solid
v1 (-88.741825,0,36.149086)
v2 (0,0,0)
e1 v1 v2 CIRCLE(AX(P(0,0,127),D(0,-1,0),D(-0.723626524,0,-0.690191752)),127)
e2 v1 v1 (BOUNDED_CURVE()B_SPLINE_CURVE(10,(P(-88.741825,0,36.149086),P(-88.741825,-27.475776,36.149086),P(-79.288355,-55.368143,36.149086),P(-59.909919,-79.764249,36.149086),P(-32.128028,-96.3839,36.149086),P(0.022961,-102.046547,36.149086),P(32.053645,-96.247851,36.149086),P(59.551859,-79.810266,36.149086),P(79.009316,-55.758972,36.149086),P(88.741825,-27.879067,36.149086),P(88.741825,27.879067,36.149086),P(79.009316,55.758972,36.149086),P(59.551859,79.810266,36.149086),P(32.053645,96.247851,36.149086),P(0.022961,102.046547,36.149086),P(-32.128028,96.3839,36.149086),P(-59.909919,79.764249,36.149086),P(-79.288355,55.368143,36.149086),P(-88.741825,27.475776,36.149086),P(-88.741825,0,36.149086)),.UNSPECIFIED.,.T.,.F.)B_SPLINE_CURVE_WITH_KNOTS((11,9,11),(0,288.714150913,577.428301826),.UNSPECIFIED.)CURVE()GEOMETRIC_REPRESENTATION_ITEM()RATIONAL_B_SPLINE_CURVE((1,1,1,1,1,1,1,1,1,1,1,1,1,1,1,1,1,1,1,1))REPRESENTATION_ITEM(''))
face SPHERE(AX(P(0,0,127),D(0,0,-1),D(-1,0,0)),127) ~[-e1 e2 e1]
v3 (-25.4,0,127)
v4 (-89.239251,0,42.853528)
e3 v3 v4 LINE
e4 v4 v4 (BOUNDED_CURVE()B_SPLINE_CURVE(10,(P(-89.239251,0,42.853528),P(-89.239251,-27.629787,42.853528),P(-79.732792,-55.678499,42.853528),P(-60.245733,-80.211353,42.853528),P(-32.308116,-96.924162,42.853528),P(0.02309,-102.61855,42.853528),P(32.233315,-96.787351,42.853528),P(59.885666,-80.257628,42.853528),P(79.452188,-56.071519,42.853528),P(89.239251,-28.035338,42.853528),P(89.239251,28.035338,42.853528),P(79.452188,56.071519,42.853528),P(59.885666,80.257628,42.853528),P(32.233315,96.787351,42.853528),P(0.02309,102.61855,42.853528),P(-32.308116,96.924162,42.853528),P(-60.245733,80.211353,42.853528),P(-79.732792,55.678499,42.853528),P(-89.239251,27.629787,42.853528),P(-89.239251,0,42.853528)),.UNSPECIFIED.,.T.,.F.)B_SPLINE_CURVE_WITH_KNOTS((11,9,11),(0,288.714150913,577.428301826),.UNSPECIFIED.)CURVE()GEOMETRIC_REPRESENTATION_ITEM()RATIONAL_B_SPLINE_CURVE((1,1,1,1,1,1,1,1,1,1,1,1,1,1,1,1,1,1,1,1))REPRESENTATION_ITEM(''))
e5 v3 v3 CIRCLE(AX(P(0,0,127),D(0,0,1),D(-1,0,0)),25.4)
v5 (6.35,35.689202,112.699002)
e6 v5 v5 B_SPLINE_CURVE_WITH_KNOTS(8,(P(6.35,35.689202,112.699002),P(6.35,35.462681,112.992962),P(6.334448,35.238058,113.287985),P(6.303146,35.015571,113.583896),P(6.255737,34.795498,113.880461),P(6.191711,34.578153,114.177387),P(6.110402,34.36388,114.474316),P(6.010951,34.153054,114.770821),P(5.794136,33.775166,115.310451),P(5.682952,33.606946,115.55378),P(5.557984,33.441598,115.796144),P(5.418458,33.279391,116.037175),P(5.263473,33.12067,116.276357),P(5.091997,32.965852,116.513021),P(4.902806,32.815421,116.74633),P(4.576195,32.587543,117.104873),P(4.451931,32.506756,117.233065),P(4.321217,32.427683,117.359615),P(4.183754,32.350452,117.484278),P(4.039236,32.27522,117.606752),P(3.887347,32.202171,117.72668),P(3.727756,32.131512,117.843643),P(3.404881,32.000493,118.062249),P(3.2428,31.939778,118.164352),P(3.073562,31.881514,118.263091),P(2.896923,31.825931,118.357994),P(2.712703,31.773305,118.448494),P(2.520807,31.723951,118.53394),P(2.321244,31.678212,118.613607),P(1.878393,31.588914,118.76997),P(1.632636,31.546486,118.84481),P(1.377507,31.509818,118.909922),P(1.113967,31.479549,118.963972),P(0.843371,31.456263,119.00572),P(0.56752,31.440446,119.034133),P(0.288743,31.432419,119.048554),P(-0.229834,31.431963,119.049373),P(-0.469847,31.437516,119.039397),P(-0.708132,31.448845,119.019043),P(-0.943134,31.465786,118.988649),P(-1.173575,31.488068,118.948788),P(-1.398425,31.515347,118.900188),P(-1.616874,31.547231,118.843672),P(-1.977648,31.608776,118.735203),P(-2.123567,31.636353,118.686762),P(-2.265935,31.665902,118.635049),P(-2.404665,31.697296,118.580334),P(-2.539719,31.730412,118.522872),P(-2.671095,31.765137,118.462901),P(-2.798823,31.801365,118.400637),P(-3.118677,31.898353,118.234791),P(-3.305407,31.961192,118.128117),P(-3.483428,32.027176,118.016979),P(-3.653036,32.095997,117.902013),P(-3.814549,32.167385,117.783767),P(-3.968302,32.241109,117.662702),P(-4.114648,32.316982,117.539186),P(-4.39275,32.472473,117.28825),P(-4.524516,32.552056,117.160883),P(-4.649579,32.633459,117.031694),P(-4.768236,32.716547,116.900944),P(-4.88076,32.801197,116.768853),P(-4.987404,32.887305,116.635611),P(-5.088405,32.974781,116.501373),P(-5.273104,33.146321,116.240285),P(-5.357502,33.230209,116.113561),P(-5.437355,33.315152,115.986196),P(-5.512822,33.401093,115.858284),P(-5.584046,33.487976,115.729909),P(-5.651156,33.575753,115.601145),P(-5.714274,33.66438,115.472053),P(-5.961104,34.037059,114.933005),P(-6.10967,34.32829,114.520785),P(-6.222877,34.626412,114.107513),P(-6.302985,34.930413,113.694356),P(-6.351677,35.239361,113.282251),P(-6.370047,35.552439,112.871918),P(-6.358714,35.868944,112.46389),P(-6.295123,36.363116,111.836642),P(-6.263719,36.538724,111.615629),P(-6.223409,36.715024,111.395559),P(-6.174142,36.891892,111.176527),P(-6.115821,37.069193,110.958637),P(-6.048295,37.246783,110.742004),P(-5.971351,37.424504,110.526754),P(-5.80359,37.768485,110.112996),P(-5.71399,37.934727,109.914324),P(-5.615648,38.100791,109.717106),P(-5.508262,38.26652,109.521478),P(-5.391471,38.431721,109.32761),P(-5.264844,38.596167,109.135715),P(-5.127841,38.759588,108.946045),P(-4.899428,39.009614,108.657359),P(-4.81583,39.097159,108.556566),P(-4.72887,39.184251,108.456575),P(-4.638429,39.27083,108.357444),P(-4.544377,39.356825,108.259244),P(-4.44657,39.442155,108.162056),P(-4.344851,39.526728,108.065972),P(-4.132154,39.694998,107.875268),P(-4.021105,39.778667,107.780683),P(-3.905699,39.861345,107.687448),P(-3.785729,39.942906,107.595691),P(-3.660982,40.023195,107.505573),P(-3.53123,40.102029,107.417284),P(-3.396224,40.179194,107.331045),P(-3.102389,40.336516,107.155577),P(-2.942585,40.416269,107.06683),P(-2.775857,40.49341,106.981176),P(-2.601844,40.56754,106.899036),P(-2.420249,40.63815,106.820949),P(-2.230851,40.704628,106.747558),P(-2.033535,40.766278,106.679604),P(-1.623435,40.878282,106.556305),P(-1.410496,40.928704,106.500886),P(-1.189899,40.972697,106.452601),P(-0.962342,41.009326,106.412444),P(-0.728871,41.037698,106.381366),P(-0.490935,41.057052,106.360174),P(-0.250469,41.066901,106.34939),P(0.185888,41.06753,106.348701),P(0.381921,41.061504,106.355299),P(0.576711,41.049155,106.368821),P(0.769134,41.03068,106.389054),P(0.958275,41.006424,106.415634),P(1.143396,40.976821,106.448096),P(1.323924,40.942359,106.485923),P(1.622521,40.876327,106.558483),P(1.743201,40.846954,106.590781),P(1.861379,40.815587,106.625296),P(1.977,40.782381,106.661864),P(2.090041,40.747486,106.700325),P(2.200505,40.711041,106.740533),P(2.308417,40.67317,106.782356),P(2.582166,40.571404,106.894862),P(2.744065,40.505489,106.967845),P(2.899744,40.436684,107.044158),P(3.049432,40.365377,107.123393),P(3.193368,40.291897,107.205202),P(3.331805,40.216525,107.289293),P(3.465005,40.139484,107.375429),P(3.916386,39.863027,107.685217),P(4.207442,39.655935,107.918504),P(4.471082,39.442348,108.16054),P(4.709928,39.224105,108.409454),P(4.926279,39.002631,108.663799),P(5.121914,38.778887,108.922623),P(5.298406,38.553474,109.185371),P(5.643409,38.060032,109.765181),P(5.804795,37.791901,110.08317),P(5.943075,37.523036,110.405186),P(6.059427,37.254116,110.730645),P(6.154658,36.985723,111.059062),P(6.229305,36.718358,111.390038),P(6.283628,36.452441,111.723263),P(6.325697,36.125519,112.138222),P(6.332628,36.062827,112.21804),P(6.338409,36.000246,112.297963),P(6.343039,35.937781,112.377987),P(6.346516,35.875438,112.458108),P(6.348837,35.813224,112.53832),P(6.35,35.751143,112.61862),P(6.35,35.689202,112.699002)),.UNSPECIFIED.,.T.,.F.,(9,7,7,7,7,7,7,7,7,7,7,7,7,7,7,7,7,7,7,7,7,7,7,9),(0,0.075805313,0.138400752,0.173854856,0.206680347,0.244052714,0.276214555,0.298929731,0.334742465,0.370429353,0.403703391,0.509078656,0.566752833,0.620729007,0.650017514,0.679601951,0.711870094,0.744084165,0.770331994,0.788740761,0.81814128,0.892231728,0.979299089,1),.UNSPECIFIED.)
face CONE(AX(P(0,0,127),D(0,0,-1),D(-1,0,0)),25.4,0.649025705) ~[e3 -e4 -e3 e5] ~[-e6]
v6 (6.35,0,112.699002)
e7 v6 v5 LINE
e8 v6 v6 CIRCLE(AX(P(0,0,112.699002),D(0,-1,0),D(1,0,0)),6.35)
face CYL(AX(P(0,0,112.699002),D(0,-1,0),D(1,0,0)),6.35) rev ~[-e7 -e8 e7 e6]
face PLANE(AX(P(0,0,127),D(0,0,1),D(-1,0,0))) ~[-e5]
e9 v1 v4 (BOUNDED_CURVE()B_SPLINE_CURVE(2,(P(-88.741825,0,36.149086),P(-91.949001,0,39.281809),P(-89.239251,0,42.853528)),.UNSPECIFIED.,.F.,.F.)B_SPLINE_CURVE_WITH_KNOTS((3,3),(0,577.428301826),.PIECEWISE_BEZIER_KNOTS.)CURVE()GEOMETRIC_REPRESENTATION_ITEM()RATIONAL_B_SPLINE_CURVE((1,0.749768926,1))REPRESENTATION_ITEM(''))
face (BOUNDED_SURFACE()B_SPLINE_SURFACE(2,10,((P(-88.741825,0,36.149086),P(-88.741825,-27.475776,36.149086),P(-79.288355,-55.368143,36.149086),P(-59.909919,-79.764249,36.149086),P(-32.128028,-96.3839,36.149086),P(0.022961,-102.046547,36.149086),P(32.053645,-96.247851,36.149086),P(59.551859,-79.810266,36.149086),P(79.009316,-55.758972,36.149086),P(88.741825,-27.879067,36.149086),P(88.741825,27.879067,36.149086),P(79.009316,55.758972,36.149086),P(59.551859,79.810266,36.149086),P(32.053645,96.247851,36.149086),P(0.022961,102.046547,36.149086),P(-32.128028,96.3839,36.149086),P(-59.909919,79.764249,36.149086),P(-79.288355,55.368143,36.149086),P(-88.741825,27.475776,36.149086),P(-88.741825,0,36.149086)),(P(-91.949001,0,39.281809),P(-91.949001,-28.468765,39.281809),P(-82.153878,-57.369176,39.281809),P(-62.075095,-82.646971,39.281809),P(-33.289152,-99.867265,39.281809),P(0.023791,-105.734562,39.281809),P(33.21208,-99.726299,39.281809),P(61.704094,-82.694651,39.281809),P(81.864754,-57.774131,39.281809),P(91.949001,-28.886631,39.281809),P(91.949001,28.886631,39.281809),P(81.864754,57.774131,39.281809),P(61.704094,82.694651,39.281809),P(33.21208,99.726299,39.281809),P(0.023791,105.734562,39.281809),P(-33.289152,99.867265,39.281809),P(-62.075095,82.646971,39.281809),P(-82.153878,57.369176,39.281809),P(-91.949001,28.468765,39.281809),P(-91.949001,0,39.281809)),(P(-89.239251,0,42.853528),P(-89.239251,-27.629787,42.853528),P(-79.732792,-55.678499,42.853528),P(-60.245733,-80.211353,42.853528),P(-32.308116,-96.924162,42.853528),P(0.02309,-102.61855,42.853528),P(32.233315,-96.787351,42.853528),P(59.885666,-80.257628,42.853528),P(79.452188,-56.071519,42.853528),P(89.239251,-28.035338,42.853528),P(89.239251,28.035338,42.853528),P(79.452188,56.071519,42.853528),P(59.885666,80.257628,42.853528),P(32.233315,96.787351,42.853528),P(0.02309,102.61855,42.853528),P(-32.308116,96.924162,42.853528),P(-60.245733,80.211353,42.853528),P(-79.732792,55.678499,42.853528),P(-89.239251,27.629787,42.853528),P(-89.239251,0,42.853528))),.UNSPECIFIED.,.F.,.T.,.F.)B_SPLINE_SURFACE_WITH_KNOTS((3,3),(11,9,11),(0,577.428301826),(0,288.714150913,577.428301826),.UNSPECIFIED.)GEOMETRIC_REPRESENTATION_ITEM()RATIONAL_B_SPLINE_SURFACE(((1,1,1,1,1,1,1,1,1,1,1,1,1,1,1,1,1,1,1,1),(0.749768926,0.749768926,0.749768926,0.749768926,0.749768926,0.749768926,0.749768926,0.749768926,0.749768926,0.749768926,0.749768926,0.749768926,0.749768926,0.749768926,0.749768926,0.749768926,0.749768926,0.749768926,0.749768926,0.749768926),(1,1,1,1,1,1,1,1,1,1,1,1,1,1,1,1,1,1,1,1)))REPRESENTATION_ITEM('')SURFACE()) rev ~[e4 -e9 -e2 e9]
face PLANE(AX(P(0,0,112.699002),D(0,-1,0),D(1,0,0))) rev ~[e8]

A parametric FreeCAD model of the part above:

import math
import FreeCAD as App
import Part
import Sketcher
from FreeCAD import Vector
Q = App.Units.Quantity


def edges_at(feature, points):
    """Names of the edges that pass closest to the given points."""
    edges = feature.Shape.Edges
    near = lambda p: min(range(len(edges)), key=lambda i: edges[i].distToShape(Part.Vertex(*p))[0])
    return sorted({f"Edge{near(p) + 1}" for p in points})

doc = App.newDocument("Part")
body = doc.addObject("PartDesign::Body", "Body")

sketch1 = body.newObject("Sketcher::SketchObject", "Sketch")
sketch1.AttachmentSupport = (doc.getObject("XZ_Plane"), [""])
sketch1.MapMode = "FlatFace"
sketch1.addGeometry(Part.ArcOfCircle(Part.Circle(Vector(0, 127, 0), Vector(0, 0, 1), 127), math.radians(-136), math.radians(-90)), False)
sketch1.addGeometry(Part.LineSegment(Vector(0, 0, 0), Vector(0, 127, 0)), False)
sketch1.addGeometry(Part.LineSegment(Vector(0, 127, 0), Vector(-25, 127, 0)), False)
sketch1.addGeometry(Part.LineSegment(Vector(-25, 127, 0), Vector(-92, 39, 0)), False)
sketch1.addConstraint(Sketcher.Constraint("Coincident", 0, 2, 1, 1))
sketch1.addConstraint(Sketcher.Constraint("Coincident", 1, 2, 2, 1))
sketch1.addConstraint(Sketcher.Constraint("Coincident", 2, 2, 3, 1))
sketch1.addConstraint(Sketcher.Constraint("Coincident", 3, 2, 0, 1))
sketch1.addConstraint(Sketcher.Constraint("Vertical", 1))
sketch1.addConstraint(Sketcher.Constraint("Horizontal", 2))
sketch1.addConstraint(Sketcher.Constraint("Coincident", 0, 2, -1, 1))
sketch1.addConstraint(Sketcher.Constraint("Coincident", 1, 2, 0, 3))
sketch1.addConstraint(Sketcher.Constraint("Radius", 0, Q("5 in")))
sketch1.addConstraint(Sketcher.Constraint("DistanceX", 2, 2, 2, 1, Q("1 in")))
sketch1.addConstraint(Sketcher.Constraint("DistanceX", 3, 2, -1, 1, 91.900569))
revolution = body.newObject("PartDesign::Revolution", "Revolution")
revolution.Profile = sketch1
revolution.ReferenceAxis = (sketch1, ["V_Axis"])
revolution.Angle = 360
doc.recompute()

fillet = body.newObject("PartDesign::Fillet", "Fillet")
fillet.Base = (revolution, edges_at(revolution, [(91.901, 0, 39.346)]))
fillet.Radius = Q("0.2 in")

sketch2 = body.newObject("Sketcher::SketchObject", "Sketch001")
sketch2.AttachmentSupport = (doc.getObject("XZ_Plane"), [""])
sketch2.MapMode = "FlatFace"
sketch2.addGeometry(Part.Circle(Vector(0, 113, 0), Vector(0, 0, 1), 6), False)
sketch2.addConstraint(Sketcher.Constraint("PointOnObject", 0, 3, -2))
sketch2.addConstraint(Sketcher.Constraint("Diameter", 0, Q("0.5 in")))
sketch2.addConstraint(Sketcher.Constraint("DistanceY", -1, 1, 0, 3, 112.699002))
pocket1 = body.newObject("PartDesign::Pocket", "Pocket")
pocket1.Profile = sketch2
pocket1.Type = "ThroughAll"

doc.recompute()
